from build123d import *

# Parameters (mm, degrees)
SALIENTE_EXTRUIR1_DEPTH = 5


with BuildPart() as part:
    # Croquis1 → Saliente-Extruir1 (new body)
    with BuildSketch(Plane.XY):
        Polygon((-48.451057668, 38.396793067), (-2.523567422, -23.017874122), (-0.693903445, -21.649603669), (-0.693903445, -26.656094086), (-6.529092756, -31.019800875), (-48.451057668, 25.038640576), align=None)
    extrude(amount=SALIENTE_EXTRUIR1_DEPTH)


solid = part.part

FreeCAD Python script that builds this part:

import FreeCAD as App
import Part
import Sketcher

V = App.Vector
Q = App.Units.Quantity


def add_polygon(sketch, points):
    """Adds a closed chain of lines whose ends are joined by coincident constraints."""
    first, n = sketch.GeometryCount, len(points)
    for a, b in zip(points, points[1:] + points[:1]):
        sketch.addGeometry(Part.LineSegment(App.Vector(*a, 0), App.Vector(*b, 0)), False)
    for i in range(n):
        sketch.addConstraint(Sketcher.Constraint("Coincident", first + i, 2, first + (i + 1) % n, 1))

doc = App.newDocument("Part")
body = doc.addObject("PartDesign::Body", "Body")

sketch1 = body.newObject("Sketcher::SketchObject", "Sketch")
sketch1.AttachmentSupport = (doc.getObject("XY_Plane"), [""])
sketch1.MapMode = "FlatFace"
add_polygon(sketch1, [(-2.5, -23), (-48.5, 38.4), (-48.5, 25), (-6.5, -31), (-0.7, -26.7), (-0.7, -21.6)])
sketch1.addConstraint([
    Sketcher.Constraint("Vertical", 1),
    Sketcher.Constraint("Vertical", 4),
    Sketcher.Constraint("Parallel", 0, 2),
    Sketcher.Constraint("Perpendicular", 2, 3),
    Sketcher.Constraint("Parallel", 3, 5),
    Sketcher.Constraint("Distance", 2, Q("70 mm")),
    Sketcher.Constraint("DistanceY", 4, 1, 4, 2, Q("5.00649 mm")),
    Sketcher.Constraint("DistanceY", 2, 2, -1, 1, Q("31.019801 mm")),
    Sketcher.Constraint("DistanceY", 1, 2, 1, 1, Q("13.358152 mm")),
    Sketcher.Constraint("DistanceY", -1, 1, 1, 2, Q("25.038641 mm")),
    Sketcher.Constraint("DistanceX", 2, 2, 3, 2, Q("5.835189 mm")),
    Sketcher.Constraint("DistanceX", 0, 2, -1, 1, Q("48.451058 mm")),
])
pad1 = body.newObject("PartDesign::Pad", "Pad")
pad1.Profile = sketch1
pad1.Length = 5

doc.recompute()
